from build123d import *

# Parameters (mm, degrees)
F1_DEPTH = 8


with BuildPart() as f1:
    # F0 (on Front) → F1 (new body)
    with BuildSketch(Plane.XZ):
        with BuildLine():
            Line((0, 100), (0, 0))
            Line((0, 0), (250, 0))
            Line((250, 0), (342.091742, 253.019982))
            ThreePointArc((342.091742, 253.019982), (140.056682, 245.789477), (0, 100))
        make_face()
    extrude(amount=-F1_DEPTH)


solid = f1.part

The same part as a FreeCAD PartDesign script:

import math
import FreeCAD as App
import Part
import Sketcher
Q = App.Units.Quantity

doc = App.newDocument("Part")
params = doc.addObject("Spreadsheet::Sheet", "Params")
for row, (alias, value) in enumerate([
    ("sketch1_width", "250 mm"),
    ("sketch1_height", "100 mm"),
    ("pad1_length", "8 mm"),
], start=1):
    params.set(f"A{row}", alias)
    params.set(f"B{row}", "=" + value)
    params.setAlias(f"B{row}", alias)

body = doc.addObject("PartDesign::Body", "Body")

# Sketch on XZ plane
sketch1 = body.newObject("Sketcher::SketchObject", "Sketch")
sketch1.AttachmentSupport = (doc.getObject("XZ_Plane"), [""])
sketch1.MapMode = "FlatFace"
sketch1.addGeometry([
    Part.LineSegment(App.Vector(0, 100, 0), App.Vector(0, 0, 0)),
    Part.LineSegment(App.Vector(0, 0, 0), App.Vector(250, 0, 0)),
    Part.LineSegment(App.Vector(250, 0, 0), App.Vector(342, 253, 0)),
    Part.ArcOfCircle(Part.Circle(App.Vector(250, 0, 0), App.Vector(0, 0, 1), 269), math.radians(70), math.radians(158)),
], False)
sketch1.addConstraint([
    Sketcher.Constraint("Coincident", 0, 2, 1, 1),
    Sketcher.Constraint("Coincident", 1, 2, 2, 1),
    Sketcher.Constraint("Coincident", 2, 2, 3, 1),
    Sketcher.Constraint("Coincident", 3, 2, 0, 1),
    Sketcher.Constraint("Vertical", 0),
    Sketcher.Constraint("Horizontal", 1),
    Sketcher.Constraint("Coincident", 0, 2, -1, 1),
    Sketcher.Constraint("Coincident", 1, 2, 3, 3),
    Sketcher.Constraint("DistanceX", 1, 1, 1, 2, Q("250 mm")),
    Sketcher.Constraint("DistanceY", 0, 2, 0, 1, Q("100 mm")),
    Sketcher.Constraint("Angle", 2, Q("70 deg")),
])
sketch1.setExpression("Constraints[8]", "Params.sketch1_width")
sketch1.setExpression("Constraints[9]", "Params.sketch1_height")
pad1 = body.newObject("PartDesign::Pad", "Pad")
pad1.Profile = sketch1
pad1.setExpression("Length", "Params.pad1_length")
pad1.Reversed = True

doc.recompute()
